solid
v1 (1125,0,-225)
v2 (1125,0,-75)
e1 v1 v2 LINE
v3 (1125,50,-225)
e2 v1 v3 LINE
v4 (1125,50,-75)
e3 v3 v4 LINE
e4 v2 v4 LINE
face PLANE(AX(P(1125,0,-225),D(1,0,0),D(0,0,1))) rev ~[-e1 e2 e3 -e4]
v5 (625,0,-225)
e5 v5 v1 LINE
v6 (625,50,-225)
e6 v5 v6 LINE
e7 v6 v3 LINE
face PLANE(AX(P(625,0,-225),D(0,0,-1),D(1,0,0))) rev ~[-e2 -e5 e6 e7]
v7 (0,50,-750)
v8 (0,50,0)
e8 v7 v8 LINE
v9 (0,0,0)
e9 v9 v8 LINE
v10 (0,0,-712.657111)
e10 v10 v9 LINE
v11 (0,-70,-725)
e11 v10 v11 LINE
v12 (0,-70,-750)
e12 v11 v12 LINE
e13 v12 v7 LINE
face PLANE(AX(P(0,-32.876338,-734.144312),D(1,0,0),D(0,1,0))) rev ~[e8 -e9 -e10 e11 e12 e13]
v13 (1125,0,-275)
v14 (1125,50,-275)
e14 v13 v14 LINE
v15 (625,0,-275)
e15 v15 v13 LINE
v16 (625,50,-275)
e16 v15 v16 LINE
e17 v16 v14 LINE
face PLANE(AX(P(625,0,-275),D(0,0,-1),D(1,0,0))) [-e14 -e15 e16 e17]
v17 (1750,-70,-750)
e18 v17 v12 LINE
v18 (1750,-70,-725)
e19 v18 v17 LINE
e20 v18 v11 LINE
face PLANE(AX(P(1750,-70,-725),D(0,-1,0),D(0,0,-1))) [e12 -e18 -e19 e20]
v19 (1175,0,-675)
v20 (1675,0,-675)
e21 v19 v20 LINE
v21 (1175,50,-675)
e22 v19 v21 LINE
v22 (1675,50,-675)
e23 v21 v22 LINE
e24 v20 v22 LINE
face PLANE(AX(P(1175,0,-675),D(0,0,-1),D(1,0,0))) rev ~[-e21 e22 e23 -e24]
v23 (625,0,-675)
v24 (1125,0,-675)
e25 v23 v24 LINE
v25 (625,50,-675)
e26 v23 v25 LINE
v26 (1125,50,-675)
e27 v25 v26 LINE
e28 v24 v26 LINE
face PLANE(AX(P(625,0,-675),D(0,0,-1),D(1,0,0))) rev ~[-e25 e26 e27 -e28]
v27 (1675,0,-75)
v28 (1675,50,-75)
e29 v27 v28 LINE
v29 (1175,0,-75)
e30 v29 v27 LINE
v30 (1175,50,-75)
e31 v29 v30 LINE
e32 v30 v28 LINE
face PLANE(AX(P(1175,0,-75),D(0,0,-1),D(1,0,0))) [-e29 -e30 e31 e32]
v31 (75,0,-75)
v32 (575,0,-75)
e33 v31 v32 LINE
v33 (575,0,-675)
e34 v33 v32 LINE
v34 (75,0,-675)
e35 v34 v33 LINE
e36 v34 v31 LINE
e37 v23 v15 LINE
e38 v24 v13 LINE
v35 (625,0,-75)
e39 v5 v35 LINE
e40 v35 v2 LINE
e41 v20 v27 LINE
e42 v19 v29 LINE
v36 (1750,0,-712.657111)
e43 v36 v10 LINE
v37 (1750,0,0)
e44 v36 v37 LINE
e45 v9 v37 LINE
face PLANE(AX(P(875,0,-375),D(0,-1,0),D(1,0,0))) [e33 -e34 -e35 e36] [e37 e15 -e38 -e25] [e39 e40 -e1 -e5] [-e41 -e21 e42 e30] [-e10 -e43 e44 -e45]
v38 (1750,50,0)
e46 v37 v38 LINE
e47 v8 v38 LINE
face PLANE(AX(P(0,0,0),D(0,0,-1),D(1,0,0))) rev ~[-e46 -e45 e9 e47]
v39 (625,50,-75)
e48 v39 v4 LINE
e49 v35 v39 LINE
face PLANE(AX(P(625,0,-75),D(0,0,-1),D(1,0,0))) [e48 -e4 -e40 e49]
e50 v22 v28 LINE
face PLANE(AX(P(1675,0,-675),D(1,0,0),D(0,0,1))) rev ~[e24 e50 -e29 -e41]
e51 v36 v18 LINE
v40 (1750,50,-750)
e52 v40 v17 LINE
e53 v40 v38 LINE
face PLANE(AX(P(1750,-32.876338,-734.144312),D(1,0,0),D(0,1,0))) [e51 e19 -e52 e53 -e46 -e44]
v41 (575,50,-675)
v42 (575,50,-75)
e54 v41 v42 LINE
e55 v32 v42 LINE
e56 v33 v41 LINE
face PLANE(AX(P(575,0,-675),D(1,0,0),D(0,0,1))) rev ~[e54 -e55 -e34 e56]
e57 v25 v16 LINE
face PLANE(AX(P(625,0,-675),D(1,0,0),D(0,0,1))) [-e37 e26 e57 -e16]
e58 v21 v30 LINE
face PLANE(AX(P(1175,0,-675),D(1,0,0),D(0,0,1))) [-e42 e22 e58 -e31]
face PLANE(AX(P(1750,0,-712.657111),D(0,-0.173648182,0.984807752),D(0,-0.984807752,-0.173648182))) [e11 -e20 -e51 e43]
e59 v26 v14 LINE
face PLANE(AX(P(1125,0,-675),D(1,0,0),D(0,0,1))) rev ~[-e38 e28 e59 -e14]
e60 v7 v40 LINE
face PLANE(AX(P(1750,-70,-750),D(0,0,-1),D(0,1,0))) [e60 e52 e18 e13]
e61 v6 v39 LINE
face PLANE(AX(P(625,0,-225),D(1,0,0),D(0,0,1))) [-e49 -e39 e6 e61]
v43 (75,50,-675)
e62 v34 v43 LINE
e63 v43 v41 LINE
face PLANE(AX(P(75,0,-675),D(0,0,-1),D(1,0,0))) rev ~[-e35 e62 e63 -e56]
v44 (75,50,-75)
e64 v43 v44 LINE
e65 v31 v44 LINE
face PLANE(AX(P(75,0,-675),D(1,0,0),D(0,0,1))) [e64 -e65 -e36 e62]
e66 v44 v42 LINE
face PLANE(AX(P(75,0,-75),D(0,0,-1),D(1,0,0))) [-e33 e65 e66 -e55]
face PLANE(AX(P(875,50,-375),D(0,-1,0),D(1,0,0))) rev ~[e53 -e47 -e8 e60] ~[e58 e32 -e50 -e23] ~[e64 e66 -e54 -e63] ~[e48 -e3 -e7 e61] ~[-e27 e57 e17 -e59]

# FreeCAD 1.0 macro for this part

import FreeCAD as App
import Part
import Sketcher
Q = App.Units.Quantity


def add_polygon(sketch, points):
    """Adds a closed chain of lines whose ends are joined by coincident constraints."""
    first, n = sketch.GeometryCount, len(points)
    for a, b in zip(points, points[1:] + points[:1]):
        sketch.addGeometry(Part.LineSegment(App.Vector(*a, 0), App.Vector(*b, 0)), False)
    for i in range(n):
        sketch.addConstraint(Sketcher.Constraint("Coincident", first + i, 2, first + (i + 1) % n, 1))

doc = App.newDocument("Part")
body = doc.addObject("PartDesign::Body", "Body")

sketch1 = doc.addObject("Sketcher::SketchObject", "Sketch")
body.addObject(sketch1)
sketch1.AttachmentSupport = (doc.XZ_Plane, [""])
sketch1.MapMode = "FlatFace"
add_polygon(sketch1, [(0, 0), (0, -750), (1750, -750), (1750, 0)])
add_polygon(sketch1, [(1125, -675), (625, -675), (625, -275), (1125, -275)])
add_polygon(sketch1, [(575, -675), (75, -675), (75, -75), (575, -75)])
add_polygon(sketch1, [(1675, -675), (1175, -675), (1175, -75), (1675, -75)])
add_polygon(sketch1, [(1125, -225), (625, -225), (625, -75), (1125, -75)])
sketch1.addConstraint(Sketcher.Constraint("Vertical", 0))
sketch1.addConstraint(Sketcher.Constraint("Horizontal", 1))
sketch1.addConstraint(Sketcher.Constraint("Vertical", 2))
sketch1.addConstraint(Sketcher.Constraint("Horizontal", 3))
sketch1.addConstraint(Sketcher.Constraint("Horizontal", 4))
sketch1.addConstraint(Sketcher.Constraint("Vertical", 5))
sketch1.addConstraint(Sketcher.Constraint("Horizontal", 6))
sketch1.addConstraint(Sketcher.Constraint("Vertical", 7))
sketch1.addConstraint(Sketcher.Constraint("Horizontal", 8))
sketch1.addConstraint(Sketcher.Constraint("Vertical", 9))
sketch1.addConstraint(Sketcher.Constraint("Horizontal", 10))
sketch1.addConstraint(Sketcher.Constraint("Vertical", 11))
sketch1.addConstraint(Sketcher.Constraint("Horizontal", 12))
sketch1.addConstraint(Sketcher.Constraint("Vertical", 13))
sketch1.addConstraint(Sketcher.Constraint("Horizontal", 14))
sketch1.addConstraint(Sketcher.Constraint("Vertical", 15))
sketch1.addConstraint(Sketcher.Constraint("Horizontal", 16))
sketch1.addConstraint(Sketcher.Constraint("Vertical", 17))
sketch1.addConstraint(Sketcher.Constraint("Horizontal", 18))
sketch1.addConstraint(Sketcher.Constraint("Vertical", 19))
sketch1.addConstraint(Sketcher.Constraint("Coincident", 3, 2, -1, 1))
sketch1.addConstraint(Sketcher.Constraint("Horizontal", 7, 2, 8, 2))
sketch1.addConstraint(Sketcher.Constraint("Horizontal", 11, 2, 12, 2))
sketch1.addConstraint(Sketcher.Constraint("Horizontal", 10, 2, 13, 2))
sketch1.addConstraint(Sketcher.Constraint("Horizontal", 14, 2, 17, 2))
sketch1.addConstraint(Sketcher.Constraint("Vertical", 5, 2, 16, 2))
sketch1.addConstraint(Sketcher.Constraint("Vertical", 7, 2, 18, 2))
sketch1.addConstraint(Sketcher.Constraint("Equal", 6, 8))
sketch1.addConstraint(Sketcher.Constraint("Equal", 10, 12))
sketch1.addConstraint(Sketcher.Constraint("DistanceX", 1, 1, 1, 2, Q("1750 mm")))
sketch1.addConstraint(Sketcher.Constraint("DistanceX", 4, 2, 4, 1, Q("500 mm")))
sketch1.addConstraint(Sketcher.Constraint("DistanceY", 0, 2, 0, 1, Q("750 mm")))
sketch1.addConstraint(Sketcher.Constraint("DistanceY", 5, 1, 5, 2, Q("400 mm")))
sketch1.addConstraint(Sketcher.Constraint("DistanceY", 9, 1, 9, 2, Q("600 mm")))
sketch1.addConstraint(Sketcher.Constraint("DistanceY", 17, 1, 17, 2, Q("150 mm")))
sketch1.addConstraint(Sketcher.Constraint("DistanceX", -1, 1, 4, 2, Q("625 mm")))
sketch1.addConstraint(Sketcher.Constraint("DistanceY", 4, 2, -1, 1, Q("675 mm")))
sketch1.addConstraint(Sketcher.Constraint("DistanceX", -1, 1, 8, 2, Q("75 mm")))
sketch1.addConstraint(Sketcher.Constraint("DistanceX", -1, 1, 12, 2, Q("1175 mm")))
pad1 = doc.addObject("PartDesign::Pad", "Pad")
body.addObject(pad1)
pad1.Profile = sketch1
pad1.Length = 50
pad1.Reversed = True

sketch2 = doc.addObject("Sketcher::SketchObject", "Sketch001")
body.addObject(sketch2)
sketch2.AttachmentSupport = (doc.YZ_Plane, [""])
sketch2.MapMode = "FlatFace"
sketch2.AttachmentOffset = App.Placement(App.Vector(0, 0, 1750), App.Rotation())
add_polygon(sketch2, [(-70, -750), (0, -750), (0, -712.657111), (-70, -725)])
sketch2.addConstraint(Sketcher.Constraint("Horizontal", 0))
sketch2.addConstraint(Sketcher.Constraint("Vertical", 1))
sketch2.addConstraint(Sketcher.Constraint("Vertical", 3))
sketch2.addConstraint(Sketcher.Constraint("PointOnObject", 0, 2, -2))
sketch2.addConstraint(Sketcher.Constraint("DistanceX", 0, 1, 0, 2, Q("70 mm")))
sketch2.addConstraint(Sketcher.Constraint("DistanceY", 3, 2, 3, 1, Q("25 mm")))
sketch2.addConstraint(Sketcher.Constraint("Angle", 2, Q("-170 deg")))
sketch2.addConstraint(Sketcher.Constraint("DistanceY", 0, 2, -1, 1, Q("750 mm")))
pad2 = doc.addObject("PartDesign::Pad", "Pad001")
body.addObject(pad2)
pad2.Profile = sketch2
pad2.Length = 1750
pad2.Reversed = True

doc.recompute()
